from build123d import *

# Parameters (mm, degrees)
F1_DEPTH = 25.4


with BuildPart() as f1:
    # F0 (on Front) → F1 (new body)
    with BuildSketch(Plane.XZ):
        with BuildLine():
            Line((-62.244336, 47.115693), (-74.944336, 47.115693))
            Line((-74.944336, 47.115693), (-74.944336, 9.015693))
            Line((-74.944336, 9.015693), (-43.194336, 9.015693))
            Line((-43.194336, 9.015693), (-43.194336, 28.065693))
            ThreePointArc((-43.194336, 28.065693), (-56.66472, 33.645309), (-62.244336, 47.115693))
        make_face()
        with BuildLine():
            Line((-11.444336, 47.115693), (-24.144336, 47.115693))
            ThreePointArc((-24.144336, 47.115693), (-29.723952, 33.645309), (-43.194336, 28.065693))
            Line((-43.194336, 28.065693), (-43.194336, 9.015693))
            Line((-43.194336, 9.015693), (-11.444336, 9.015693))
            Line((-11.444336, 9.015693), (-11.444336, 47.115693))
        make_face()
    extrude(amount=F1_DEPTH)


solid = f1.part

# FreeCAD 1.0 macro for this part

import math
import FreeCAD as App
import Part
import Sketcher
from FreeCAD import Vector
Q = App.Units.Quantity

doc = App.newDocument("Part")
body = doc.addObject("PartDesign::Body", "Body")

# Sketch on XZ plane
sketch1 = body.newObject("Sketcher::SketchObject", "Sketch")
sketch1.AttachmentSupport = (doc.getObject("XZ_Plane"), [""])
sketch1.MapMode = "FlatFace"
sketch1.addGeometry(Part.LineSegment(Vector(-62.244336, 47.115693, 0), Vector(-74.944336, 47.115693, 0)), False)
sketch1.addGeometry(Part.LineSegment(Vector(-74.944336, 47.115693, 0), Vector(-74.944336, 9.015693, 0)), False)
sketch1.addGeometry(Part.LineSegment(Vector(-74.944336, 9.015693, 0), Vector(-11.444336, 9.015693, 0)), False)
sketch1.addGeometry(Part.LineSegment(Vector(-11.444336, 9.015693, 0), Vector(-11.444336, 47.115693, 0)), False)
sketch1.addGeometry(Part.LineSegment(Vector(-11.444336, 47.115693, 0), Vector(-24.144336, 47.115693, 0)), False)
sketch1.addGeometry(Part.ArcOfCircle(Part.Circle(Vector(-43.194337, 47.115694, 0), Vector(0, 0, 1), 19.050001), math.radians(-89.999998), math.radians(-0.000002)), False)
sketch1.addGeometry(Part.ArcOfCircle(Part.Circle(Vector(-43.194335, 47.115694, 0), Vector(0, 0, 1), 19.050001), math.radians(-179.999998), math.radians(-90.000002)), False)
sketch1.addConstraint(Sketcher.Constraint("Coincident", 0, 2, 1, 1))
sketch1.addConstraint(Sketcher.Constraint("Coincident", 1, 2, 2, 1))
sketch1.addConstraint(Sketcher.Constraint("Coincident", 2, 2, 3, 1))
sketch1.addConstraint(Sketcher.Constraint("Coincident", 3, 2, 4, 1))
sketch1.addConstraint(Sketcher.Constraint("Coincident", 4, 2, 5, 2))
sketch1.addConstraint(Sketcher.Constraint("Tangent", 5, 1, 6, 2))
sketch1.addConstraint(Sketcher.Constraint("Coincident", 6, 1, 0, 1))
sketch1.addConstraint(Sketcher.Constraint("Horizontal", 0))
sketch1.addConstraint(Sketcher.Constraint("Vertical", 1))
sketch1.addConstraint(Sketcher.Constraint("Horizontal", 2))
sketch1.addConstraint(Sketcher.Constraint("Vertical", 3))
sketch1.addConstraint(Sketcher.Constraint("Horizontal", 4))
sketch1.addConstraint(Sketcher.Constraint("Equal", 5, 6))
sketch1.addConstraint(Sketcher.Constraint("Horizontal", 6, 3, 0, 2))
sketch1.addConstraint(Sketcher.Constraint("Horizontal", 0, 2, 3, 2))
sketch1.addConstraint(Sketcher.Constraint("Vertical", 6, 3, 5, 1))
sketch1.addConstraint(Sketcher.Constraint("Equal", 0, 4))
sketch1.addConstraint(Sketcher.Constraint("Radius", 5, Q("0.75 in")))
sketch1.addConstraint(Sketcher.Constraint("DistanceX", 0, 2, 0, 1, Q("0.5 in")))
sketch1.addConstraint(Sketcher.Constraint("DistanceY", 1, 2, 1, 1, Q("1.5 in")))
sketch1.addConstraint(Sketcher.Constraint("DistanceX", 5, 3, -1, 1, Q("43.194337 mm")))
sketch1.addConstraint(Sketcher.Constraint("DistanceY", -1, 1, 5, 3, Q("47.115694 mm")))
pad1 = body.newObject("PartDesign::Pad", "Pad")
pad1.Profile = sketch1
pad1.Length = Q("1 in")

doc.recompute()
